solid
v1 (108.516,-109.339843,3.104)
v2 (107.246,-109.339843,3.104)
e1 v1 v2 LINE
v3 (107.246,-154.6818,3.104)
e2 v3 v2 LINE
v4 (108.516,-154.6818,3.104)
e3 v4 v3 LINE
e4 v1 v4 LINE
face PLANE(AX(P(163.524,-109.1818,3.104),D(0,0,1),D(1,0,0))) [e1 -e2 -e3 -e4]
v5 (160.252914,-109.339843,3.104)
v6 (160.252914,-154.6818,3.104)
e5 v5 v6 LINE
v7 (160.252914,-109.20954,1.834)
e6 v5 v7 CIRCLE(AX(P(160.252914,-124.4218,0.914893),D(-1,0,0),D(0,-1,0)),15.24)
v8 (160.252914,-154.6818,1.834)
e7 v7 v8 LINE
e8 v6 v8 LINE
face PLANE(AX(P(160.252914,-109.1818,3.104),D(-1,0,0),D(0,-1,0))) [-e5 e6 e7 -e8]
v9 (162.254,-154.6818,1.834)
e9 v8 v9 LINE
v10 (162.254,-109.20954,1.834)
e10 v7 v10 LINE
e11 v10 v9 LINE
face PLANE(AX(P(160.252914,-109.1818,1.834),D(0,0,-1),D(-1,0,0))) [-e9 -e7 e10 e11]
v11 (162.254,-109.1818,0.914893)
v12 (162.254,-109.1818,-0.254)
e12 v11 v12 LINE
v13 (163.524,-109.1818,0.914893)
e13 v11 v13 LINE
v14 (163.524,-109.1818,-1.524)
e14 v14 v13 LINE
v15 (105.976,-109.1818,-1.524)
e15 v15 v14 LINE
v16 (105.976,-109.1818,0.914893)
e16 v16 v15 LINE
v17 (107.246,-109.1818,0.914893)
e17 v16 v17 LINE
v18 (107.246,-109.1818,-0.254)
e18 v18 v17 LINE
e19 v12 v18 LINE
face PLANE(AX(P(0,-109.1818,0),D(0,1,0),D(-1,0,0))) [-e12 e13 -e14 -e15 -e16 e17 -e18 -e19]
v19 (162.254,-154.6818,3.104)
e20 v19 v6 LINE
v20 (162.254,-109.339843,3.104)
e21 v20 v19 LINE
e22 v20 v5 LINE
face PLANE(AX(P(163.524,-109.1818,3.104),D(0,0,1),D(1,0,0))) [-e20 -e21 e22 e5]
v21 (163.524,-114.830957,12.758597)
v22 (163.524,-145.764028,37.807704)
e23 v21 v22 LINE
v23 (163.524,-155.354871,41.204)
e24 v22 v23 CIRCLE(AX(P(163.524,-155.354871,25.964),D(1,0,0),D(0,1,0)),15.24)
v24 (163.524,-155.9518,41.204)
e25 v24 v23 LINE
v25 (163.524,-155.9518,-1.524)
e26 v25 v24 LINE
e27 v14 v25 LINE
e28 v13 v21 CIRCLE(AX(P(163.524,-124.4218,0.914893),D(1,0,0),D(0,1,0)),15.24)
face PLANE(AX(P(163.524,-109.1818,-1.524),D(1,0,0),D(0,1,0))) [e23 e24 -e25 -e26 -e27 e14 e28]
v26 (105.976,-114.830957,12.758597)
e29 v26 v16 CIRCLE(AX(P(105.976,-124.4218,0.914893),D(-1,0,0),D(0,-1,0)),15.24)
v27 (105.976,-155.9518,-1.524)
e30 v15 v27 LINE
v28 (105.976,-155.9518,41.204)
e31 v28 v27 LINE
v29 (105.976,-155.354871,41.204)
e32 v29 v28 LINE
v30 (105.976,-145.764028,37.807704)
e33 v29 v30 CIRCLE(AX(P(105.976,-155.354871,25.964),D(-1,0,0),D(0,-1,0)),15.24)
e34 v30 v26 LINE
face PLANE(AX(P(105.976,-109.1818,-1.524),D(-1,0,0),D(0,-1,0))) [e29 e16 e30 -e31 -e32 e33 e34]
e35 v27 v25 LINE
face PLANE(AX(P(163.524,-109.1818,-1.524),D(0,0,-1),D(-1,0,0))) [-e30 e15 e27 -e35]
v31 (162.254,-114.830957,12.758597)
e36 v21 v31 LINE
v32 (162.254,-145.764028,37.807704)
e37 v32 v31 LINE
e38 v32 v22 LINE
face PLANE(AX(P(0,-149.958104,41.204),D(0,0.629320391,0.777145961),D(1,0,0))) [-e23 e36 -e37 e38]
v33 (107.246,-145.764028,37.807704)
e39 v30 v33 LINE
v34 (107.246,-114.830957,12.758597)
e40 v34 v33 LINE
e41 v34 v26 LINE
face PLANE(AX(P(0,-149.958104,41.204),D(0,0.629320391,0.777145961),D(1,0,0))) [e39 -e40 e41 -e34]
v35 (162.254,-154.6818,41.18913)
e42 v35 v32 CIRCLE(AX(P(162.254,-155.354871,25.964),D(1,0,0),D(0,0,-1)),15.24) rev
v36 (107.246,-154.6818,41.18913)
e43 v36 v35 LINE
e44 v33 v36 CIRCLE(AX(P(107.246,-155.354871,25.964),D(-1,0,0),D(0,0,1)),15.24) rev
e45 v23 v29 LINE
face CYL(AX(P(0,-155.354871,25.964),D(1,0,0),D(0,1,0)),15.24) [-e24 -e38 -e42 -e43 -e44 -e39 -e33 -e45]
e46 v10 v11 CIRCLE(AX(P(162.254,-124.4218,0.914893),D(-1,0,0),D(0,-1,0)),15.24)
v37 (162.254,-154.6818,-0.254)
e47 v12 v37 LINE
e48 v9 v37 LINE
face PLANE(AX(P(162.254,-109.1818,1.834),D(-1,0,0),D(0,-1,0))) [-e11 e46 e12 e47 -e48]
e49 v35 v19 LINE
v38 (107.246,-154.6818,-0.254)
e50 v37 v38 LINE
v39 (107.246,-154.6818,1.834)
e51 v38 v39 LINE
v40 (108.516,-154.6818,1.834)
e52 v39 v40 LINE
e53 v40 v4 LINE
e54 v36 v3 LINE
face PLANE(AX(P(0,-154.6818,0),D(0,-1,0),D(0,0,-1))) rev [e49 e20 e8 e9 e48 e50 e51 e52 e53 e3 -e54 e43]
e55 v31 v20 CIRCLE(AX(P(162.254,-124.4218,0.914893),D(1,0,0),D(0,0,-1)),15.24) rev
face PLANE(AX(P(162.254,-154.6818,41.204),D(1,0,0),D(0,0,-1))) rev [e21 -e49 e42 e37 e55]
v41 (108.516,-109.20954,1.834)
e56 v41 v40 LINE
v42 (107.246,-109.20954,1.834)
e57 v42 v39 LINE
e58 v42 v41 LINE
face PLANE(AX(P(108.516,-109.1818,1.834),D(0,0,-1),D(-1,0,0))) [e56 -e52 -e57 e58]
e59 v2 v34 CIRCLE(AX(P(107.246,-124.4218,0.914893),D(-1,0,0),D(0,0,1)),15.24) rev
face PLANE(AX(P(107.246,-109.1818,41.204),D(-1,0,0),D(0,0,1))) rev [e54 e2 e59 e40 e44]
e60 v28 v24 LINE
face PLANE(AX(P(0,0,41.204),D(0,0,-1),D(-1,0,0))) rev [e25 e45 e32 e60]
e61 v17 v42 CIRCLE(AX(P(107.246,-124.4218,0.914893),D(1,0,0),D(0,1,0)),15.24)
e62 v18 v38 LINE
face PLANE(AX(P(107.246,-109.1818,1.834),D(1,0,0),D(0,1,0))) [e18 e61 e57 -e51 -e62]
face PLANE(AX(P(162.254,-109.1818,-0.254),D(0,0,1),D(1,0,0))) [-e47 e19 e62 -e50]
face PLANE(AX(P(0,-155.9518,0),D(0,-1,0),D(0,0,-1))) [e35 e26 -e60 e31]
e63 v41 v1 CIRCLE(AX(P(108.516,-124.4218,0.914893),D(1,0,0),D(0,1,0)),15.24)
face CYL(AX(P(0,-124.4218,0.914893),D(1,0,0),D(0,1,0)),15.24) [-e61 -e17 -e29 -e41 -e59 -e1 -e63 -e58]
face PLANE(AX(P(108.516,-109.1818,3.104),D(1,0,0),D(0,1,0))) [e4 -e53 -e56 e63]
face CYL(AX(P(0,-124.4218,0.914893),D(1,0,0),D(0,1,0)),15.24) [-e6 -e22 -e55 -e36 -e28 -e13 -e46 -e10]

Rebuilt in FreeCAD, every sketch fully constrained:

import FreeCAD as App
import Part
import Sketcher

V = App.Vector
Q = App.Units.Quantity


def edges_at(feature, points):
    """Names of the edges that pass closest to the given points."""
    edges = feature.Shape.Edges
    near = lambda p: min(range(len(edges)), key=lambda i: edges[i].distToShape(Part.Vertex(*p))[0])
    return sorted({f"Edge{near(p) + 1}" for p in points})

doc = App.newDocument("Part")
body = doc.addObject("PartDesign::Body", "Body")

sketch1 = body.newObject("Sketcher::SketchObject", "Sketch")
sketch1.AttachmentSupport = (doc.getObject("XZ_Plane"), [""])
sketch1.MapMode = "FlatFace"
sketch1.AttachmentOffset = App.Placement(V(0, 0, 154.6818), App.Rotation())
sketch1.addGeometry([
    Part.LineSegment(V(107.2, 1.8, 0), V(108.5, 1.8, 0)),
    Part.LineSegment(V(108.5, 1.8, 0), V(108.5, 3.1, 0)),
    Part.LineSegment(V(108.5, 3.1, 0), V(106, 3.1, 0)),
    Part.LineSegment(V(106, 3.1, 0), V(106, -1.5, 0)),
    Part.LineSegment(V(106, -1.5, 0), V(163.5, -1.5, 0)),
    Part.LineSegment(V(163.5, -1.5, 0), V(163.5, 3.1, 0)),
    Part.LineSegment(V(163.5, 3.1, 0), V(160.3, 3.1, 0)),
    Part.LineSegment(V(160.3, 3.1, 0), V(160.3, 1.8, 0)),
    Part.LineSegment(V(160.3, 1.8, 0), V(162.3, 1.8, 0)),
    Part.LineSegment(V(162.3, 1.8, 0), V(162.3, -0.3, 0)),
    Part.LineSegment(V(162.3, -0.3, 0), V(107.2, -0.3, 0)),
    Part.LineSegment(V(107.2, -0.3, 0), V(107.2, 1.8, 0)),
], False)
sketch1.addConstraint([
    Sketcher.Constraint("Coincident", 0, 2, 1, 1),
    Sketcher.Constraint("Coincident", 1, 2, 2, 1),
    Sketcher.Constraint("Coincident", 2, 2, 3, 1),
    Sketcher.Constraint("Coincident", 3, 2, 4, 1),
    Sketcher.Constraint("Coincident", 4, 2, 5, 1),
    Sketcher.Constraint("Coincident", 5, 2, 6, 1),
    Sketcher.Constraint("Coincident", 6, 2, 7, 1),
    Sketcher.Constraint("Coincident", 7, 2, 8, 1),
    Sketcher.Constraint("Coincident", 8, 2, 9, 1),
    Sketcher.Constraint("Coincident", 9, 2, 10, 1),
    Sketcher.Constraint("Coincident", 10, 2, 11, 1),
    Sketcher.Constraint("Coincident", 11, 2, 0, 1),
    Sketcher.Constraint("Horizontal", 0),
    Sketcher.Constraint("Vertical", 1),
    Sketcher.Constraint("Horizontal", 2),
    Sketcher.Constraint("Vertical", 3),
    Sketcher.Constraint("Horizontal", 4),
    Sketcher.Constraint("Vertical", 5),
    Sketcher.Constraint("Horizontal", 6),
    Sketcher.Constraint("Vertical", 7),
    Sketcher.Constraint("Horizontal", 8),
    Sketcher.Constraint("Vertical", 9),
    Sketcher.Constraint("Horizontal", 10),
    Sketcher.Constraint("Vertical", 11),
    Sketcher.Constraint("Horizontal", 2, 2, 5, 2),
    Sketcher.Constraint("Horizontal", 0, 2, 7, 2),
    Sketcher.Constraint("Equal", 0, 1),
    Sketcher.Constraint("DistanceX", 2, 2, 2, 1, Q("0.1 in")),
    Sketcher.Constraint("DistanceX", 0, 1, 0, 2, Q("0.05 in")),
    Sketcher.Constraint("DistanceY", 3, 2, -1, 1, Q("0.06 in")),
    Sketcher.Constraint("DistanceY", 9, 2, -1, 1, Q("0.01 in")),
    Sketcher.Constraint("DistanceX", 8, 2, 5, 2, Q("0.05 in")),
    Sketcher.Constraint("DistanceX", 4, 1, 4, 2, 57.548),
    Sketcher.Constraint("DistanceY", 3, 2, 3, 1, 4.628),
    Sketcher.Constraint("DistanceX", -1, 1, 0, 2, 108.516),
    Sketcher.Constraint("DistanceX", 6, 2, 6, 1, 3.271086),
])
pad1 = body.newObject("PartDesign::Pad", "Pad")
pad1.Profile = sketch1
pad1.Length = 45.5
pad1.Reversed = True

sketch2 = body.newObject("Sketcher::SketchObject", "Sketch001")
sketch2.AttachmentSupport = (doc.getObject("XZ_Plane"), [""])
sketch2.MapMode = "FlatFace"
sketch2.AttachmentOffset = App.Placement(V(0, 0, 154.6818), App.Rotation())
sketch2.addGeometry([
    Part.LineSegment(V(106, 3.1, 0), V(106, -1.5, 0)),
    Part.LineSegment(V(106, -1.5, 0), V(163.5, -1.5, 0)),
    Part.LineSegment(V(163.5, -1.5, 0), V(163.5, 3.1, 0)),
    Part.LineSegment(V(163.5, 3.1, 0), V(106, 3.1, 0)),
], False)
sketch2.addConstraint([
    Sketcher.Constraint("Coincident", 0, 2, 1, 1),
    Sketcher.Constraint("Coincident", 1, 2, 2, 1),
    Sketcher.Constraint("Coincident", 2, 2, 3, 1),
    Sketcher.Constraint("Coincident", 3, 2, 0, 1),
    Sketcher.Constraint("Vertical", 0),
    Sketcher.Constraint("Horizontal", 1),
    Sketcher.Constraint("Vertical", 2),
    Sketcher.Constraint("Horizontal", 3),
    Sketcher.Constraint("DistanceY", 0, 2, -1, 1, Q("0.06 in")),
    Sketcher.Constraint("DistanceX", 1, 1, 1, 2, 57.548),
    Sketcher.Constraint("DistanceY", 0, 2, 0, 1, 4.628),
    Sketcher.Constraint("DistanceX", -1, 1, 0, 2, 105.976),
])
pad2 = body.newObject("PartDesign::Pad", "Pad001")
pad2.Profile = sketch2
pad2.Length = Q("0.05 in")

sketch3 = body.newObject("Sketcher::SketchObject", "Sketch002")
sketch3.AttachmentSupport = (doc.getObject("XY_Plane"), [""])
sketch3.MapMode = "FlatFace"
sketch3.AttachmentOffset = App.Placement(V(0, 0, 3.104), App.Rotation())
sketch3.addGeometry([
    Part.LineSegment(V(107.2, -109.2, 0), V(106, -109.2, 0)),
    Part.LineSegment(V(106, -109.2, 0), V(106, -156, 0)),
    Part.LineSegment(V(106, -156, 0), V(163.5, -156, 0)),
    Part.LineSegment(V(163.5, -156, 0), V(163.5, -109.2, 0)),
    Part.LineSegment(V(163.5, -109.2, 0), V(162.3, -109.2, 0)),
    Part.LineSegment(V(162.3, -109.2, 0), V(162.3, -154.7, 0)),
    Part.LineSegment(V(162.3, -154.7, 0), V(107.2, -154.7, 0)),
    Part.LineSegment(V(107.2, -154.7, 0), V(107.2, -109.2, 0)),
], False)
sketch3.addConstraint([
    Sketcher.Constraint("Coincident", 0, 2, 1, 1),
    Sketcher.Constraint("Coincident", 1, 2, 2, 1),
    Sketcher.Constraint("Coincident", 2, 2, 3, 1),
    Sketcher.Constraint("Coincident", 3, 2, 4, 1),
    Sketcher.Constraint("Coincident", 4, 2, 5, 1),
    Sketcher.Constraint("Coincident", 5, 2, 6, 1),
    Sketcher.Constraint("Coincident", 6, 2, 7, 1),
    Sketcher.Constraint("Coincident", 7, 2, 0, 1),
    Sketcher.Constraint("Horizontal", 0),
    Sketcher.Constraint("Vertical", 1),
    Sketcher.Constraint("Horizontal", 2),
    Sketcher.Constraint("Vertical", 3),
    Sketcher.Constraint("Horizontal", 4),
    Sketcher.Constraint("Vertical", 5),
    Sketcher.Constraint("Horizontal", 6),
    Sketcher.Constraint("Vertical", 7),
    Sketcher.Constraint("Horizontal", 0, 2, 3, 2),
    Sketcher.Constraint("Equal", 0, 4),
    Sketcher.Constraint("DistanceX", 0, 2, 0, 1, Q("0.05 in")),
    Sketcher.Constraint("DistanceY", 2, 2, 5, 2, Q("0.05 in")),
    Sketcher.Constraint("DistanceX", 2, 1, 2, 2, 57.548),
    Sketcher.Constraint("DistanceY", 1, 2, 1, 1, 46.77),
    Sketcher.Constraint("DistanceX", -1, 1, 0, 2, 105.976),
    Sketcher.Constraint("DistanceY", 0, 2, -1, 1, 109.1818),
])
pad3 = body.newObject("PartDesign::Pad", "Pad002")
pad3.Profile = sketch3
pad3.Length = Q("1.5 in")
doc.recompute()

chamfer = body.newObject("PartDesign::Chamfer", "Chamfer")
chamfer.Base = (pad3, edges_at(pad3, [(162.889, -109.182, 41.204), (106.611, -109.182, 41.204)]))
chamfer.ChamferType = "Two distances"
chamfer.Size = Q("1.3 in")
chamfer.Size2 = 40.776304
chamfer.FlipDirection = True
doc.recompute()

fillet = body.newObject("PartDesign::Fillet", "Fillet")
fillet.Base = (chamfer, edges_at(chamfer, [(162.889, -109.182, 8.184), (106.611, -109.182, 8.184)]))
fillet.Radius = Q("0.6 in")
doc.recompute()

fillet2 = body.newObject("PartDesign::Fillet", "Fillet001")
fillet2.Base = (fillet, edges_at(fillet, [(106.611, -149.958, 41.204)]))
fillet2.Radius = Q("0.6 in")

doc.recompute()
